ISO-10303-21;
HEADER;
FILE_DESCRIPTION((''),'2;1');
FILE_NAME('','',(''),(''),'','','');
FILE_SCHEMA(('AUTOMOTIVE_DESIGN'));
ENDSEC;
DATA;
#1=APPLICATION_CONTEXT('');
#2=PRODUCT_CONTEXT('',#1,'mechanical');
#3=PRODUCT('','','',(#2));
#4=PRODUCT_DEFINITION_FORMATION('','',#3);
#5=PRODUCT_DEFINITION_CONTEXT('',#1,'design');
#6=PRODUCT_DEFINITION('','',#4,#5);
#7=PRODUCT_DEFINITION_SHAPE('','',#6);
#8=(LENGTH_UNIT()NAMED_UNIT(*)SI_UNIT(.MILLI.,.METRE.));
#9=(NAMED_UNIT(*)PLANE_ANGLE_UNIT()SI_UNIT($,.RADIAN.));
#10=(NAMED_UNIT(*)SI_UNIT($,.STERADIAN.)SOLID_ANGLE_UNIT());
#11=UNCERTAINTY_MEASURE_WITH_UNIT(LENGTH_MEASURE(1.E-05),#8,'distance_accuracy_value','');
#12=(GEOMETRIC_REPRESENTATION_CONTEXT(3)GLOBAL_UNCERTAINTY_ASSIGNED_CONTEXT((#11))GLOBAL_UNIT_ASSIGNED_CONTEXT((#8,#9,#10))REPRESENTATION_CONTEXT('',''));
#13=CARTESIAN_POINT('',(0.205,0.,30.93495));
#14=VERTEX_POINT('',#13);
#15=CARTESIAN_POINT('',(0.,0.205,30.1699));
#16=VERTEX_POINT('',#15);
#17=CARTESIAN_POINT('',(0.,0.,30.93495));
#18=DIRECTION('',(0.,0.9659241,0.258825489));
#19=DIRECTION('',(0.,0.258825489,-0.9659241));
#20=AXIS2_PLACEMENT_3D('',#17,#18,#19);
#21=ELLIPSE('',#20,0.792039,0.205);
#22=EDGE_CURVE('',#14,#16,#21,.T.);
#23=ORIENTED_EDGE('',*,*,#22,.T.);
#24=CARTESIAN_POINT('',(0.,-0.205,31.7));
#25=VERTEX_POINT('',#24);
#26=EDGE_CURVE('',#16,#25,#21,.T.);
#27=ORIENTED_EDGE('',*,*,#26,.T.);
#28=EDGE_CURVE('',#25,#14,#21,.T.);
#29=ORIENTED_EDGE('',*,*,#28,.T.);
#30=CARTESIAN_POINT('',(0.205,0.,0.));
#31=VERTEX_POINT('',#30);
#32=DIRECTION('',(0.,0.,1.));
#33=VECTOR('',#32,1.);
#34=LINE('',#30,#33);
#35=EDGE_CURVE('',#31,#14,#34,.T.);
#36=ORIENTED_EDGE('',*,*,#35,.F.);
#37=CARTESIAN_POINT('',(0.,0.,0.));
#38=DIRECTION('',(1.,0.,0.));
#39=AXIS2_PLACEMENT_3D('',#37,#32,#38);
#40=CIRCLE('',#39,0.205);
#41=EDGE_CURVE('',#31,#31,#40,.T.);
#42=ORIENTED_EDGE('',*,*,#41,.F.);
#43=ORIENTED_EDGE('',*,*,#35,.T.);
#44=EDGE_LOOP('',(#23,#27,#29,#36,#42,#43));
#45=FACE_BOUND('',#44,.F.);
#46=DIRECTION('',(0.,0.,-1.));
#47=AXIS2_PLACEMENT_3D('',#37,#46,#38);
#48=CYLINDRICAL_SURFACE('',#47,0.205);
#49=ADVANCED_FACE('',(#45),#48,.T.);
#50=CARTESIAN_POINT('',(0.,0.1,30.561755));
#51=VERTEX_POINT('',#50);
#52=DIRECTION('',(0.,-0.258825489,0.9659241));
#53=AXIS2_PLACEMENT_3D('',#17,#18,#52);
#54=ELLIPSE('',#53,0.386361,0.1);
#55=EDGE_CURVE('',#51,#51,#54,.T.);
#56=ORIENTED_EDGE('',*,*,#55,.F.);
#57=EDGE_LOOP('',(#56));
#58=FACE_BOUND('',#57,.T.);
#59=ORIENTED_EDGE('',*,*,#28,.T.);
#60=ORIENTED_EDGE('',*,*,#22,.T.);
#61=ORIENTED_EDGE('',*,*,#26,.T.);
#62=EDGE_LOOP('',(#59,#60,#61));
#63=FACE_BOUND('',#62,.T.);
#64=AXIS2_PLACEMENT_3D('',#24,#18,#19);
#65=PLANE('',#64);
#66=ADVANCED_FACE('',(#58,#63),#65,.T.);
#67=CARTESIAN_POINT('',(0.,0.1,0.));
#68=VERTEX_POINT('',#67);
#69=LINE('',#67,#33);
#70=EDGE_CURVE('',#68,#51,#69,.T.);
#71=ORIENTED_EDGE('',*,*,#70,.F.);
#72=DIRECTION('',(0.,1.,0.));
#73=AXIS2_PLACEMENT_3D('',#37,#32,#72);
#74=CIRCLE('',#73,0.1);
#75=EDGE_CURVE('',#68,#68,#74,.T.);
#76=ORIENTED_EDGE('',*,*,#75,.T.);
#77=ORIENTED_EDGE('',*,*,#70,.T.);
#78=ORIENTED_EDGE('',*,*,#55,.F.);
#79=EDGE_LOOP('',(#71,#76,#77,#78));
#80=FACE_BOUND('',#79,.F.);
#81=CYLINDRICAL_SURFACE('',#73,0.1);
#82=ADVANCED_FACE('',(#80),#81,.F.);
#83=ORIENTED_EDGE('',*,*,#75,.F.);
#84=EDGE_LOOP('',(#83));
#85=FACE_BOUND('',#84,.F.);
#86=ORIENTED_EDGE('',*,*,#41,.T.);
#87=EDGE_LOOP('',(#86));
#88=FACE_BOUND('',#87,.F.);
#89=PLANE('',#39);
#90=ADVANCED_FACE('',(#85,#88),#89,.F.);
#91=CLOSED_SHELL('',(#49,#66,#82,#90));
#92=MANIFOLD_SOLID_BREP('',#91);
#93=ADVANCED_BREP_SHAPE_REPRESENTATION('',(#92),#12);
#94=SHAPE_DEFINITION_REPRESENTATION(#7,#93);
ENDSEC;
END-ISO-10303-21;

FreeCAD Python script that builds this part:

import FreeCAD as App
import Part
import Sketcher
Q = App.Units.Quantity


def add_polygon(sketch, points):
    """Adds a closed chain of lines whose ends are joined by coincident constraints."""
    first, n = sketch.GeometryCount, len(points)
    for a, b in zip(points, points[1:] + points[:1]):
        sketch.addGeometry(Part.LineSegment(App.Vector(*a, 0), App.Vector(*b, 0)), False)
    for i in range(n):
        sketch.addConstraint(Sketcher.Constraint("Coincident", first + i, 2, first + (i + 1) % n, 1))

doc = App.newDocument("Part")
body = doc.addObject("PartDesign::Body", "Body")

# Sketch on XY plane
sketch1 = body.newObject("Sketcher::SketchObject", "Sketch")
sketch1.AttachmentSupport = (doc.getObject("XY_Plane"), [""])
sketch1.MapMode = "FlatFace"
sketch1.addGeometry(Part.Circle(App.Vector(0, 0, 0), App.Vector(0, 0, 1), 0.2), False)
sketch1.addConstraint([
    Sketcher.Constraint("Coincident", 0, 3, -1, 1),
    Sketcher.Constraint("Diameter", 0, 0.41),
])
pad1 = body.newObject("PartDesign::Pad", "Pad")
pad1.Profile = sketch1
pad1.Length = 31.7

# Sketch on XY plane
sketch2 = body.newObject("Sketcher::SketchObject", "Sketch001")
sketch2.AttachmentSupport = (doc.getObject("XY_Plane"), [""])
sketch2.MapMode = "FlatFace"
sketch2.addGeometry(Part.Circle(App.Vector(0, 0, 0), App.Vector(0, 0, 1), 0.1), False)
sketch2.addConstraint([
    Sketcher.Constraint("Coincident", 0, 3, -1, 1),
    Sketcher.Constraint("Diameter", 0, 0.2),
])
doc.recompute()
hole = body.newObject("PartDesign::Hole", "Hole")
hole.Profile = sketch2
hole.ThreadType = "None"
hole.Diameter = 0.2
hole.DepthType = "ThroughAll"
hole.Reversed = True

# Sketch on YZ plane
sketch3 = body.newObject("Sketcher::SketchObject", "Sketch002")
sketch3.AttachmentSupport = (doc.getObject("YZ_Plane"), [""])
sketch3.MapMode = "FlatFace"
add_polygon(sketch3, [(-0.2, 31.7), (0.2, 30.17), (0.2, 31.7)])  # lines 0-2
sketch3.addConstraint([
    Sketcher.Constraint("Vertical", 1),
    Sketcher.Constraint("Horizontal", 2),
    Sketcher.Constraint("DistanceY", 1, 1, 1, 2, 1.53),
    Sketcher.Constraint("Angle", 0, Q("-74.9996 deg")),
    Sketcher.Constraint("DistanceY", -1, 1, 1, 2, 31.7),
    Sketcher.Constraint("DistanceX", -1, 1, 0, 2, 0.205),
])
pocket1 = body.newObject("PartDesign::Pocket", "Pocket")
pocket1.Profile = sketch3
pocket1.Type = "ThroughAll"
pocket1.Midplane = True

doc.recompute()
